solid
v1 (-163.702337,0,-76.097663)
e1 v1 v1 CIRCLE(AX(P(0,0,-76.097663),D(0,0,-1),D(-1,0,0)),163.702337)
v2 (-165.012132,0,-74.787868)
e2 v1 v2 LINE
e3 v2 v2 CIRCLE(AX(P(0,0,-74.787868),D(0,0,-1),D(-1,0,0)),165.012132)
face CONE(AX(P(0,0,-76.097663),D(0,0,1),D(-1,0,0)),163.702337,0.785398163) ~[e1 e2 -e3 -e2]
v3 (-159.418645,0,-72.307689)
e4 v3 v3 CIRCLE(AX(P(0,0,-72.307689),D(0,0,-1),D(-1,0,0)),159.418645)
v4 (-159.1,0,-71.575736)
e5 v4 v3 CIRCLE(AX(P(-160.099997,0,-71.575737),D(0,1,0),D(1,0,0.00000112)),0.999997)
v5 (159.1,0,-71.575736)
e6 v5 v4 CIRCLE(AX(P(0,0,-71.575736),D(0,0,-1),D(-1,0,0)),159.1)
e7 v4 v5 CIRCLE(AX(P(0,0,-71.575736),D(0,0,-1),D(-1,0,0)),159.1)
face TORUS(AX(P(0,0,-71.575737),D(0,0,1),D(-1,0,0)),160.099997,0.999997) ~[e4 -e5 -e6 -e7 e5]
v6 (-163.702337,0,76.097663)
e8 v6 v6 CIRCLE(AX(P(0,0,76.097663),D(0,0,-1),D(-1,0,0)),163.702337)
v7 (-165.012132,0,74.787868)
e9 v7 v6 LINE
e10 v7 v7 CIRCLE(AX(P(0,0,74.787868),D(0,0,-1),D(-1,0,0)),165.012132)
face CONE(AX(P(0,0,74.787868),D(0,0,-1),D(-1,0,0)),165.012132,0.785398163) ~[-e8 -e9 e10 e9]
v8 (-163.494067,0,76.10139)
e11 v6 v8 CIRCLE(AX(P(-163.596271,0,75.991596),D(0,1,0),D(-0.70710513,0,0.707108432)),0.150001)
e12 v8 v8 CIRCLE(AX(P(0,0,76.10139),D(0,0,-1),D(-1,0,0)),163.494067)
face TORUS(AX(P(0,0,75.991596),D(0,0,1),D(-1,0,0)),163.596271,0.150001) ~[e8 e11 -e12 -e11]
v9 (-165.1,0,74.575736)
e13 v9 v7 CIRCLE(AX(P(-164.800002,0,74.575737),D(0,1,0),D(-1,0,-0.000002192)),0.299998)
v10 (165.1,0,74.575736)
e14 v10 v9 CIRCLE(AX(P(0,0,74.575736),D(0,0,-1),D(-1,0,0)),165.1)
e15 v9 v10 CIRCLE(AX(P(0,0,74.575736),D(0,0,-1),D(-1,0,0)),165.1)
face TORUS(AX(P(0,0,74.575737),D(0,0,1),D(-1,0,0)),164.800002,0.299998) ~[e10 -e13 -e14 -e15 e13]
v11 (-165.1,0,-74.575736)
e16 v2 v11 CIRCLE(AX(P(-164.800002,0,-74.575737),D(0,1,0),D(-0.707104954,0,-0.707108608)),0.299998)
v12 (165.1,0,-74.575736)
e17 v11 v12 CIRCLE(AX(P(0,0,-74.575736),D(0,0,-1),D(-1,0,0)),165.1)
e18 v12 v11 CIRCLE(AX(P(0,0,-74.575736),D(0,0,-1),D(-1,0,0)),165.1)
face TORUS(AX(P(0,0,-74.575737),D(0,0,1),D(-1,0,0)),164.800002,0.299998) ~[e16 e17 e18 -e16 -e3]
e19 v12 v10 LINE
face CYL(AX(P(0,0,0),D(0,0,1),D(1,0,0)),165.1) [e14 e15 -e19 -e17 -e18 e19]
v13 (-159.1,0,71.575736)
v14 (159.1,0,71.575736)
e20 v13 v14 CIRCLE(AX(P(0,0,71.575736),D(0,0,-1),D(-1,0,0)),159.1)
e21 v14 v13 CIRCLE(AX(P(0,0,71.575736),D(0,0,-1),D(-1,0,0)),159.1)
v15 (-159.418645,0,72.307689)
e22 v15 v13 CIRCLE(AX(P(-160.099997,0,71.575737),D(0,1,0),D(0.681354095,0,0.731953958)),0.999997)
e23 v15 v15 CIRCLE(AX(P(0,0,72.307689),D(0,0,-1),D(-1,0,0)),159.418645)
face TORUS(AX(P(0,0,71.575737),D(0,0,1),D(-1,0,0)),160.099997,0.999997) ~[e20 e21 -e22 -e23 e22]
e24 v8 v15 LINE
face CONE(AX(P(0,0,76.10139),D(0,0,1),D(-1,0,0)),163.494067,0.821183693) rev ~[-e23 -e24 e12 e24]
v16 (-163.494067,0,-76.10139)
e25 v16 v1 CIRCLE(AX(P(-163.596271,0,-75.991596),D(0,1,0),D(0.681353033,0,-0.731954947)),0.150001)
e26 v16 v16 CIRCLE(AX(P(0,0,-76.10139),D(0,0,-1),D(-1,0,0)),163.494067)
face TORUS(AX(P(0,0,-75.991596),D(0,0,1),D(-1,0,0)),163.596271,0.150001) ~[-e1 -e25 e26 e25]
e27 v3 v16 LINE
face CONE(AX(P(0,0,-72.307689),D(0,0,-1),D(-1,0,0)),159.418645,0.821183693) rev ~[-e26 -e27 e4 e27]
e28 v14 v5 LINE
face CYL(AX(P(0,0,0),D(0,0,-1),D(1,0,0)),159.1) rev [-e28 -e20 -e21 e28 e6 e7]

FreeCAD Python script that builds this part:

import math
import FreeCAD as App
import Part
import Sketcher
from FreeCAD import Vector

doc = App.newDocument("Part")
body = doc.addObject("PartDesign::Body", "Body")

# Sketch on XY plane
sketch1 = body.newObject("Sketcher::SketchObject", "Sketch")
sketch1.AttachmentSupport = (doc.getObject("XY_Plane"), [""])
sketch1.MapMode = "FlatFace"
sketch1.addGeometry(Part.Circle(Vector(0, 0, 0), Vector(0, 0, 1), 165), False)
sketch1.addGeometry(Part.Circle(Vector(0, 0, 0), Vector(0, 0, 1), 159), False)
sketch1.addConstraint(Sketcher.Constraint("Coincident", 0, 3, -1, 1))
sketch1.addConstraint(Sketcher.Constraint("Coincident", 1, 3, -1, 1))
sketch1.addConstraint(Sketcher.Constraint("Diameter", 0, 330.2))
sketch1.addConstraint(Sketcher.Constraint("Diameter", 1, 318.2))
pad1 = body.newObject("PartDesign::Pad", "Pad")
pad1.Profile = sketch1
pad1.Length = 152.4
pad1.Midplane = True

# Sketch on XZ plane
sketch2 = body.newObject("Sketcher::SketchObject", "Sketch001")
sketch2.AttachmentSupport = (doc.getObject("XZ_Plane"), [""])
sketch2.MapMode = "FlatFace"
sketch2.addGeometry(Part.LineSegment(Vector(-165.1, 76.2, 0), Vector(-165.1, 74.58, 0)), False)
sketch2.addGeometry(Part.ArcOfCircle(Part.Circle(Vector(-164.8, 74.58, 0), Vector(0, 0, 1), 0.3), math.radians(135), math.radians(180)), False)
sketch2.addGeometry(Part.LineSegment(Vector(-165.01, 74.79, 0), Vector(-163.7, 76.1, 0)), False)
sketch2.addGeometry(Part.ArcOfCircle(Part.Circle(Vector(-163.6, 75.99, 0), Vector(0, 0, 1), 0.15), math.radians(47), math.radians(135)), False)
sketch2.addGeometry(Part.LineSegment(Vector(-163.49, 76.1, 0), Vector(-159.42, 72.31, 0)), False)
sketch2.addGeometry(Part.ArcOfCircle(Part.Circle(Vector(-160.1, 71.58, 0), Vector(0, 0, 1), 1), math.radians(0), math.radians(47)), False)
sketch2.addGeometry(Part.LineSegment(Vector(-159.1, 71.58, 0), Vector(-159.1, 76.2, 0)), False)
sketch2.addGeometry(Part.LineSegment(Vector(-159.1, 76.2, 0), Vector(-165.1, 76.2, 0)), False)
sketch2.addGeometry(Part.LineSegment(Vector(-165.1, -74.58, 0), Vector(-165.1, -76.2, 0)), False)
sketch2.addGeometry(Part.LineSegment(Vector(-165.1, -76.2, 0), Vector(-159.1, -76.2, 0)), False)
sketch2.addGeometry(Part.LineSegment(Vector(-159.1, -76.2, 0), Vector(-159.1, -71.58, 0)), False)
sketch2.addGeometry(Part.ArcOfCircle(Part.Circle(Vector(-160.1, -71.58, 0), Vector(0, 0, 1), 1), math.radians(-47), math.radians(0)), False)
sketch2.addGeometry(Part.LineSegment(Vector(-159.42, -72.31, 0), Vector(-163.49, -76.1, 0)), False)
sketch2.addGeometry(Part.ArcOfCircle(Part.Circle(Vector(-163.6, -75.99, 0), Vector(0, 0, 1), 0.15), math.radians(-135), math.radians(-47)), False)
sketch2.addGeometry(Part.LineSegment(Vector(-163.7, -76.1, 0), Vector(-165.01, -74.79, 0)), False)
sketch2.addGeometry(Part.ArcOfCircle(Part.Circle(Vector(-164.8, -74.58, 0), Vector(0, 0, 1), 0.3), math.radians(180), math.radians(225)), False)
sketch2.addConstraint(Sketcher.Constraint("Coincident", 0, 2, 1, 2))
sketch2.addConstraint(Sketcher.Constraint("Coincident", 1, 1, 2, 1))
sketch2.addConstraint(Sketcher.Constraint("Coincident", 2, 2, 3, 2))
sketch2.addConstraint(Sketcher.Constraint("Coincident", 3, 1, 4, 1))
sketch2.addConstraint(Sketcher.Constraint("Tangent", 4, 2, 5, 2))
sketch2.addConstraint(Sketcher.Constraint("Tangent", 5, 1, 6, 1))
sketch2.addConstraint(Sketcher.Constraint("Coincident", 6, 2, 7, 1))
sketch2.addConstraint(Sketcher.Constraint("Coincident", 7, 2, 0, 1))
sketch2.addConstraint(Sketcher.Constraint("Coincident", 8, 2, 9, 1))
sketch2.addConstraint(Sketcher.Constraint("Coincident", 9, 2, 10, 1))
sketch2.addConstraint(Sketcher.Constraint("Tangent", 10, 2, 11, 2))
sketch2.addConstraint(Sketcher.Constraint("Tangent", 11, 1, 12, 1))
sketch2.addConstraint(Sketcher.Constraint("Coincident", 12, 2, 13, 2))
sketch2.addConstraint(Sketcher.Constraint("Coincident", 13, 1, 14, 1))
sketch2.addConstraint(Sketcher.Constraint("Coincident", 14, 2, 15, 2))
sketch2.addConstraint(Sketcher.Constraint("Coincident", 15, 1, 8, 1))
sketch2.addConstraint(Sketcher.Constraint("Vertical", 0))
sketch2.addConstraint(Sketcher.Constraint("Vertical", 6))
sketch2.addConstraint(Sketcher.Constraint("Horizontal", 7))
sketch2.addConstraint(Sketcher.Constraint("Vertical", 8))
sketch2.addConstraint(Sketcher.Constraint("Horizontal", 9))
sketch2.addConstraint(Sketcher.Constraint("Vertical", 10))
sketch2.addConstraint(Sketcher.Constraint("Equal", 5, 11))
sketch2.addConstraint(Sketcher.Constraint("Equal", 3, 13))
sketch2.addConstraint(Sketcher.Constraint("Equal", 1, 15))
sketch2.addConstraint(Sketcher.Constraint("Symmetric", 5, 3, 11, 3, -1))
sketch2.addConstraint(Sketcher.Constraint("Symmetric", 3, 3, 13, 3, -1))
sketch2.addConstraint(Sketcher.Constraint("Symmetric", 1, 3, 15, 3, -1))
sketch2.addConstraint(Sketcher.Constraint("Perpendicular", 2, 14))
sketch2.addConstraint(Sketcher.Constraint("Horizontal", 1, 3, 0, 2))
sketch2.addConstraint(Sketcher.Constraint("Vertical", 3, 1, 12, 2))
sketch2.addConstraint(Sketcher.Constraint("Vertical", 2, 2, 13, 1))
sketch2.addConstraint(Sketcher.Constraint("Vertical", 1, 1, 14, 2))
sketch2.addConstraint(Sketcher.Constraint("Equal", 0, 8))
sketch2.addConstraint(Sketcher.Constraint("Equal", 6, 10))
sketch2.addConstraint(Sketcher.Constraint("Radius", 1, 0.299998))
sketch2.addConstraint(Sketcher.Constraint("DistanceX", 7, 2, 7, 1, 6.0))
sketch2.addConstraint(Sketcher.Constraint("Radius", 3, 0.150001))
sketch2.addConstraint(Sketcher.Constraint("DistanceY", 5, 3, 1, 3, 3.0))
sketch2.addConstraint(Sketcher.Constraint("DistanceX", 1, 3, -1, 1, 164.800002))
sketch2.addConstraint(Sketcher.Constraint("DistanceY", -1, 1, 6, 2, 76.2))
sketch2.addConstraint(Sketcher.Constraint("Radius", 5, 0.999997))
sketch2.addConstraint(Sketcher.Constraint("DistanceY", 4, 2, 3, 1, 3.793701))
sketch2.addConstraint(Sketcher.Constraint("Distance", 2, 1.85233))
sketch2.addConstraint(Sketcher.Constraint("DistanceY", 0, 2, 0, 1, 1.624264))
sketch2.addConstraint(Sketcher.Constraint("DistanceX", 3, 3, -1, 1, 163.596271))
sketch2.addConstraint(Sketcher.Constraint("DistanceY", -1, 1, 1, 1, 74.787868))
groove = body.newObject("PartDesign::Groove", "Groove")
groove.Profile = sketch2
groove.ReferenceAxis = (sketch2, ["V_Axis"])
groove.Angle = 360

doc.recompute()
